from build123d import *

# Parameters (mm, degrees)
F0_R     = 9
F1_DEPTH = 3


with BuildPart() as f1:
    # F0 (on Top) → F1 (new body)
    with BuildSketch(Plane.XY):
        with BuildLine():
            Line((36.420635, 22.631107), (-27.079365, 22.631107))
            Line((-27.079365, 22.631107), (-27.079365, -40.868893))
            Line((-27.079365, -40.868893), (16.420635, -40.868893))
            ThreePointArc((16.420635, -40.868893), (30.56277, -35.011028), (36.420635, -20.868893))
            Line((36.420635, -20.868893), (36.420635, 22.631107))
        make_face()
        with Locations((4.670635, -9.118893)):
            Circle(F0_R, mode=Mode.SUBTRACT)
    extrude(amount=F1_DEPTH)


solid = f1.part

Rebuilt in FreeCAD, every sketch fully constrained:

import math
import FreeCAD as App
import Part
import Sketcher

doc = App.newDocument("Part")
params = doc.addObject("Spreadsheet::Sheet", "Params")
for row, (alias, value) in enumerate([
    ("sketch1_diameter", "18 mm"),
    ("sketch1_width", "63.5 mm"),
    ("sketch1_width2", "43.5 mm"),
    ("pad1_length", "3 mm"),
], start=1):
    params.set(f"A{row}", alias)
    params.set(f"B{row}", "=" + value)
    params.setAlias(f"B{row}", alias)

body = doc.addObject("PartDesign::Body", "Body")

sketch1 = body.newObject("Sketcher::SketchObject", "Sketch")
sketch1.AttachmentSupport = (doc.getObject("XY_Plane"), [""])
sketch1.MapMode = "FlatFace"
sketch1.addGeometry(Part.LineSegment(App.Vector(36, 23, 0), App.Vector(-27, 23, 0)), False)
sketch1.addGeometry(Part.LineSegment(App.Vector(-27, 23, 0), App.Vector(-27, -41, 0)), False)
sketch1.addGeometry(Part.LineSegment(App.Vector(-27, -41, 0), App.Vector(16, -41, 0)), False)
sketch1.addGeometry(Part.ArcOfCircle(Part.Circle(App.Vector(16, -21, 0), App.Vector(0, 0, 1), 20), math.radians(-90), math.radians(0)), False)
sketch1.addGeometry(Part.LineSegment(App.Vector(36, -21, 0), App.Vector(36, 23, 0)), False)
sketch1.addGeometry(Part.Circle(App.Vector(5, -9, 0), App.Vector(0, 0, 1), 9), False)
sketch1.addConstraint(Sketcher.Constraint("Coincident", 0, 2, 1, 1))
sketch1.addConstraint(Sketcher.Constraint("Coincident", 1, 2, 2, 1))
sketch1.addConstraint(Sketcher.Constraint("Tangent", 2, 2, 3, 1))
sketch1.addConstraint(Sketcher.Constraint("Tangent", 3, 2, 4, 1))
sketch1.addConstraint(Sketcher.Constraint("Coincident", 4, 2, 0, 1))
sketch1.addConstraint(Sketcher.Constraint("Horizontal", 0))
sketch1.addConstraint(Sketcher.Constraint("Vertical", 1))
sketch1.addConstraint(Sketcher.Constraint("Horizontal", 2))
sketch1.addConstraint(Sketcher.Constraint("Vertical", 4))
sketch1.addConstraint(Sketcher.Constraint("Equal", 0, 1))
sketch1.addConstraint(Sketcher.Constraint("Diameter", 5, 18.0))
sketch1.addConstraint(Sketcher.Constraint("DistanceX", 0, 2, 0, 1, 63.5))
sketch1.addConstraint(Sketcher.Constraint("DistanceX", 2, 1, 2, 2, 43.5))
sketch1.addConstraint(Sketcher.Constraint("DistanceX", 0, 2, 5, 3, 31.75))
sketch1.addConstraint(Sketcher.Constraint("DistanceY", 5, 3, 0, 2, 31.75))
sketch1.addConstraint(Sketcher.Constraint("DistanceY", 3, 3, -1, 1, 20.868891))
sketch1.addConstraint(Sketcher.Constraint("DistanceX", -1, 1, 3, 3, 16.420633))
sketch1.setExpression("Constraints[10]", "Params.sketch1_diameter")
sketch1.setExpression("Constraints[11]", "Params.sketch1_width")
sketch1.setExpression("Constraints[12]", "Params.sketch1_width2")
pad1 = body.newObject("PartDesign::Pad", "Pad")
pad1.Profile = sketch1
pad1.setExpression("Length", "Params.pad1_length")

doc.recompute()
